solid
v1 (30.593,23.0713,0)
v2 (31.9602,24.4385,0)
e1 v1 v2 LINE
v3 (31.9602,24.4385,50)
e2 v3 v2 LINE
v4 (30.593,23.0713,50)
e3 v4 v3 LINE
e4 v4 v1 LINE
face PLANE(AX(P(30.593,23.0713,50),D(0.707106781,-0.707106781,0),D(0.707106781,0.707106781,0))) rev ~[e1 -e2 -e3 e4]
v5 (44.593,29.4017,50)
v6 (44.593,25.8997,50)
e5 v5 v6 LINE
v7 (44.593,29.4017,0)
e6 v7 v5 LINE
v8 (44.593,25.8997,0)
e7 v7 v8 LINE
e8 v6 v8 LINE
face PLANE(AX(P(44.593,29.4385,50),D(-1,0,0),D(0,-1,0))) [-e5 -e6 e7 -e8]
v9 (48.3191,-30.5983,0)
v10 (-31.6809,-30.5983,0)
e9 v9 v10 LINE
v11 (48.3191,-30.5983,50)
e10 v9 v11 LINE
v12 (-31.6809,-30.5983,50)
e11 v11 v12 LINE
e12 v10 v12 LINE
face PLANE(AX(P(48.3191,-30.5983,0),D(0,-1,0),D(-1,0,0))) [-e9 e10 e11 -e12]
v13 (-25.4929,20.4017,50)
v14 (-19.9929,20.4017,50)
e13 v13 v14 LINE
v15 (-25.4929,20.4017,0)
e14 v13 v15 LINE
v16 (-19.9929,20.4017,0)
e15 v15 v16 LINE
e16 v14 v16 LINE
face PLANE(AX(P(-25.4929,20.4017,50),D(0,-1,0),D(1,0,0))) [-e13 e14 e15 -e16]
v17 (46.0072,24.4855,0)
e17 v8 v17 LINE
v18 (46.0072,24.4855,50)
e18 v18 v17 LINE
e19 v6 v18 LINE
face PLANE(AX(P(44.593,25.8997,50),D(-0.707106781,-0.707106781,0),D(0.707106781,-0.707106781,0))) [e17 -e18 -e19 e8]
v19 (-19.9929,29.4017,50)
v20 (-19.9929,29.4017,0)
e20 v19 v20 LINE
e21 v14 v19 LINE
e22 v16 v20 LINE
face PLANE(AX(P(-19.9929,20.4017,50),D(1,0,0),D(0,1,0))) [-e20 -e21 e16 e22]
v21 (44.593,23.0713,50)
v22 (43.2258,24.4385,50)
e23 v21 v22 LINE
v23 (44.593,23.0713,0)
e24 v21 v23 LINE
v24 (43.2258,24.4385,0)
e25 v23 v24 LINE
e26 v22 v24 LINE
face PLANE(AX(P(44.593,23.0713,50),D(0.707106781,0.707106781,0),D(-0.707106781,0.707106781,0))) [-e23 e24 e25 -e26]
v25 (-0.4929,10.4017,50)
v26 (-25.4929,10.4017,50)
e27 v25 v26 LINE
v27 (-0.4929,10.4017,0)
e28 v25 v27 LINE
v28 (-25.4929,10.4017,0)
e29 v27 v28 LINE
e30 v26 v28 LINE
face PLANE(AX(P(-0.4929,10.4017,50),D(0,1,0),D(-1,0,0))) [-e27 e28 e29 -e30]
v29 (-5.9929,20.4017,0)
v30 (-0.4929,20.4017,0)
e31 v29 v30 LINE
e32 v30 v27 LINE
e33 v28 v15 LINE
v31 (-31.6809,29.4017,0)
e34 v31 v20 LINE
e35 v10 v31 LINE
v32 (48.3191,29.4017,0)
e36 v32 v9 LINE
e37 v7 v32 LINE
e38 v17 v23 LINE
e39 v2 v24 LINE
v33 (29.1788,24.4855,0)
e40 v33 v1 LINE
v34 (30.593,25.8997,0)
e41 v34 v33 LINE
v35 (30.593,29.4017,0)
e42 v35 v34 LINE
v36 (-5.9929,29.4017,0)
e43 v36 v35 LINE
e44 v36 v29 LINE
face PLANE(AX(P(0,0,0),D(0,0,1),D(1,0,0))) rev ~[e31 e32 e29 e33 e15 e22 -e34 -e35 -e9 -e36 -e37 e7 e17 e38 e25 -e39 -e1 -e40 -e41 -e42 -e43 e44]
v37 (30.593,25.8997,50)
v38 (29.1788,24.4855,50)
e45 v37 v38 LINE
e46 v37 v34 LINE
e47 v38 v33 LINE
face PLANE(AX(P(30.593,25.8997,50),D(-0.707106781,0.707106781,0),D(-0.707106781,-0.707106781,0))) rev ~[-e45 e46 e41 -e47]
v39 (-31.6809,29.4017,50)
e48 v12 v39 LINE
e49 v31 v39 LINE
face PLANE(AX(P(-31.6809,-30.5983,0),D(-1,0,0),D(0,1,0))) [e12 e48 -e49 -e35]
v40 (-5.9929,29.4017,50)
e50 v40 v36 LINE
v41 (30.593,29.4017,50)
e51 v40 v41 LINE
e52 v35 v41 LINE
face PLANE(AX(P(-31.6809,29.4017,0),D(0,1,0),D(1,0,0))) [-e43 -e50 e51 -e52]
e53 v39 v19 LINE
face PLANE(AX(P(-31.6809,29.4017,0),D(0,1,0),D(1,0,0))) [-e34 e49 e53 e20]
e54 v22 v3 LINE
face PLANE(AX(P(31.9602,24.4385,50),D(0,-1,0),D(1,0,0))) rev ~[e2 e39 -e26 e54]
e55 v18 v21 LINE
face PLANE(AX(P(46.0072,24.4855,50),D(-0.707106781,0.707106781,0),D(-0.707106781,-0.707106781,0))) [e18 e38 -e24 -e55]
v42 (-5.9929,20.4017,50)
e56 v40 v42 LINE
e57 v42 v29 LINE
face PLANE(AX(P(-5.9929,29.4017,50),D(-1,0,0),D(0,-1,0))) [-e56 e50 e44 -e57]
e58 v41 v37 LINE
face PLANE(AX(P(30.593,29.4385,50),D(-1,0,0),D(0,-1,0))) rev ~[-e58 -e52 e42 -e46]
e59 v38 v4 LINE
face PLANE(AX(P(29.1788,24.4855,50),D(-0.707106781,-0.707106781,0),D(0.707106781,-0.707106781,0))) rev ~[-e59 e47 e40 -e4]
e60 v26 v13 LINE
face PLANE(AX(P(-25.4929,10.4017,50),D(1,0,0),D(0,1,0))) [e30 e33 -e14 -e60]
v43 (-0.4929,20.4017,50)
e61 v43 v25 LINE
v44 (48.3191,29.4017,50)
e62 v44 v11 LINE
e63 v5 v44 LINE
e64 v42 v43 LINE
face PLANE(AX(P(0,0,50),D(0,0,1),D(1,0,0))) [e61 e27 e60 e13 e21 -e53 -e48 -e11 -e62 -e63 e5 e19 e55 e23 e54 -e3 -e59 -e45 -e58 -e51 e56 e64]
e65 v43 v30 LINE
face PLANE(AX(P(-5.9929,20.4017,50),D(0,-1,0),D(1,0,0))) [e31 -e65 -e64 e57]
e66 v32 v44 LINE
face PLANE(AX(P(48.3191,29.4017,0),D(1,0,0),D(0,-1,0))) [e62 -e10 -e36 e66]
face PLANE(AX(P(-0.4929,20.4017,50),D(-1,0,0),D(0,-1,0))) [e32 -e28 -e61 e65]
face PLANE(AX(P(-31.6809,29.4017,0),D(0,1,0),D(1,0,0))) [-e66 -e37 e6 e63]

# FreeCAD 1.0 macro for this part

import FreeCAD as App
import Part
import Sketcher

V = App.Vector

doc = App.newDocument("Part")
params = doc.addObject("Spreadsheet::Sheet", "Params")
for row, (alias, value) in enumerate([
    ("sketch1_width", "80 mm"),
    ("sketch1_height", "60 mm"),
    ("pad1_length", "50 mm"),
    ("sketch2_width", "14 mm"),
    ("sketch2_width2", "25 mm"),
    ("sketch2_height", "9 mm"),
    ("sketch2_height2", "10 mm"),
    ("pocket1_length", "50 mm"),
    ("sketch3_length", "2 mm"),
    ("sketch3_width", "14 mm"),
    ("pocket2_length", "50 mm"),
], start=1):
    params.set(f"A{row}", alias)
    params.set(f"B{row}", "=" + value)
    params.setAlias(f"B{row}", alias)

body = doc.addObject("PartDesign::Body", "Body")

sketch1 = doc.addObject("Sketcher::SketchObject", "Sketch")
body.addObject(sketch1)
sketch1.AttachmentSupport = (doc.XY_Plane, [""])
sketch1.MapMode = "FlatFace"
sketch1.addGeometry([
    Part.LineSegment(V(48, 29, 0), V(-32, 29, 0)),
    Part.LineSegment(V(-32, 29, 0), V(-32, -31, 0)),
    Part.LineSegment(V(-32, -31, 0), V(48, -31, 0)),
    Part.LineSegment(V(48, -31, 0), V(48, 29, 0)),
], False)
sketch1.addConstraint([
    Sketcher.Constraint("Coincident", 0, 2, 1, 1),
    Sketcher.Constraint("Coincident", 1, 2, 2, 1),
    Sketcher.Constraint("Coincident", 2, 2, 3, 1),
    Sketcher.Constraint("Coincident", 3, 2, 0, 1),
    Sketcher.Constraint("Horizontal", 0),
    Sketcher.Constraint("Vertical", 1),
    Sketcher.Constraint("Horizontal", 2),
    Sketcher.Constraint("Vertical", 3),
    Sketcher.Constraint("DistanceX", 0, 2, 0, 1, 80.0),
    Sketcher.Constraint("DistanceY", 1, 2, 1, 1, 60.0),
    Sketcher.Constraint("DistanceX", 0, 2, -1, 1, 31.681),
    Sketcher.Constraint("DistanceY", -1, 1, 0, 2, 29.4017),
])
sketch1.setExpression("Constraints[8]", "Params.sketch1_width")
sketch1.setExpression("Constraints[9]", "Params.sketch1_height")
pad1 = doc.addObject("PartDesign::Pad", "Pad")
body.addObject(pad1)
pad1.Profile = sketch1
pad1.setExpression("Length", "Params.pad1_length")

sketch2 = doc.addObject("Sketcher::SketchObject", "Sketch001")
body.addObject(sketch2)
sketch2.AttachmentSupport = (doc.XY_Plane, [""])
sketch2.MapMode = "FlatFace"
sketch2.AttachmentOffset = App.Placement(V(0, 0, 50), App.Rotation())
sketch2.addGeometry([
    Part.LineSegment(V(-6, 29, 0), V(-20, 29, 0)),
    Part.LineSegment(V(-20, 29, 0), V(-20, 20, 0)),
    Part.LineSegment(V(-20, 20, 0), V(-25, 20, 0)),
    Part.LineSegment(V(-25, 20, 0), V(-25, 10, 0)),
    Part.LineSegment(V(-25, 10, 0), V(0, 10, 0)),
    Part.LineSegment(V(0, 10, 0), V(0, 20, 0)),
    Part.LineSegment(V(0, 20, 0), V(-6, 20, 0)),
    Part.LineSegment(V(-6, 20, 0), V(-6, 29, 0)),
], False)
sketch2.addConstraint([
    Sketcher.Constraint("Coincident", 0, 2, 1, 1),
    Sketcher.Constraint("Coincident", 1, 2, 2, 1),
    Sketcher.Constraint("Coincident", 2, 2, 3, 1),
    Sketcher.Constraint("Coincident", 3, 2, 4, 1),
    Sketcher.Constraint("Coincident", 4, 2, 5, 1),
    Sketcher.Constraint("Coincident", 5, 2, 6, 1),
    Sketcher.Constraint("Coincident", 6, 2, 7, 1),
    Sketcher.Constraint("Coincident", 7, 2, 0, 1),
    Sketcher.Constraint("Horizontal", 0),
    Sketcher.Constraint("Vertical", 1),
    Sketcher.Constraint("Horizontal", 2),
    Sketcher.Constraint("Vertical", 3),
    Sketcher.Constraint("Horizontal", 4),
    Sketcher.Constraint("Vertical", 5),
    Sketcher.Constraint("Horizontal", 6),
    Sketcher.Constraint("Vertical", 7),
    Sketcher.Constraint("Horizontal", 2, 2, 5, 2),
    Sketcher.Constraint("Equal", 2, 6),
    Sketcher.Constraint("DistanceX", 0, 2, 0, 1, 14.0),
    Sketcher.Constraint("DistanceX", 4, 1, 4, 2, 25.0),
    Sketcher.Constraint("DistanceY", 1, 2, 1, 1, 9.0),
    Sketcher.Constraint("DistanceY", 3, 2, 3, 1, 10.0),
    Sketcher.Constraint("DistanceX", 0, 2, -1, 1, 19.993),
    Sketcher.Constraint("DistanceY", -1, 1, 0, 2, 29.4017),
])
sketch2.setExpression("Constraints[18]", "Params.sketch2_width")
sketch2.setExpression("Constraints[19]", "Params.sketch2_width2")
sketch2.setExpression("Constraints[20]", "Params.sketch2_height")
sketch2.setExpression("Constraints[21]", "Params.sketch2_height2")
pocket1 = doc.addObject("PartDesign::Pocket", "Pocket")
body.addObject(pocket1)
pocket1.Profile = sketch2
pocket1.setExpression("Length", "Params.pocket1_length")

sketch3 = doc.addObject("Sketcher::SketchObject", "Sketch002")
body.addObject(sketch3)
sketch3.AttachmentSupport = (doc.XY_Plane, [""])
sketch3.MapMode = "FlatFace"
sketch3.AttachmentOffset = App.Placement(V(0, 0, 50), App.Rotation())
sketch3.addGeometry([
    Part.LineSegment(V(44.6, 29.4, 0), V(30.6, 29.4, 0)),
    Part.LineSegment(V(30.6, 29.4, 0), V(30.6, 25.9, 0)),
    Part.LineSegment(V(30.6, 25.9, 0), V(29.2, 24.5, 0)),
    Part.LineSegment(V(29.2, 24.5, 0), V(30.6, 23.1, 0)),
    Part.LineSegment(V(30.6, 23.1, 0), V(32, 24.4, 0)),
    Part.LineSegment(V(32, 24.4, 0), V(43.2, 24.4, 0)),
    Part.LineSegment(V(43.2, 24.4, 0), V(44.6, 23.1, 0)),
    Part.LineSegment(V(44.6, 23.1, 0), V(46, 24.5, 0)),
    Part.LineSegment(V(46, 24.5, 0), V(44.6, 25.9, 0)),
    Part.LineSegment(V(44.6, 25.9, 0), V(44.6, 29.4, 0)),
], False)
sketch3.addConstraint([
    Sketcher.Constraint("Coincident", 0, 2, 1, 1),
    Sketcher.Constraint("Coincident", 1, 2, 2, 1),
    Sketcher.Constraint("Coincident", 2, 2, 3, 1),
    Sketcher.Constraint("Coincident", 3, 2, 4, 1),
    Sketcher.Constraint("Coincident", 4, 2, 5, 1),
    Sketcher.Constraint("Coincident", 5, 2, 6, 1),
    Sketcher.Constraint("Coincident", 6, 2, 7, 1),
    Sketcher.Constraint("Coincident", 7, 2, 8, 1),
    Sketcher.Constraint("Coincident", 8, 2, 9, 1),
    Sketcher.Constraint("Coincident", 9, 2, 0, 1),
    Sketcher.Constraint("Horizontal", 0),
    Sketcher.Constraint("Vertical", 1),
    Sketcher.Constraint("Horizontal", 5),
    Sketcher.Constraint("Vertical", 9),
    Sketcher.Constraint("Perpendicular", 2, 3),
    Sketcher.Constraint("Perpendicular", 3, 4),
    Sketcher.Constraint("Perpendicular", 4, 6),
    Sketcher.Constraint("Perpendicular", 6, 7),
    Sketcher.Constraint("Perpendicular", 7, 8),
    Sketcher.Constraint("Horizontal", 3, 2, 6, 2),
    Sketcher.Constraint("Horizontal", 2, 2, 7, 2),
    Sketcher.Constraint("Horizontal", 1, 2, 8, 2),
    Sketcher.Constraint("Vertical", 1, 2, 3, 2),
    Sketcher.Constraint("Vertical", 6, 2, 8, 2),
    Sketcher.Constraint("Distance", 2, 2.0),
    Sketcher.Constraint("DistanceY", 4, 2, 0, 2, 5.0),
    Sketcher.Constraint("DistanceX", 0, 2, 0, 1, 14.0),
    Sketcher.Constraint("DistanceX", 5, 1, 5, 2, 11.2656),
    Sketcher.Constraint("DistanceX", -1, 1, 0, 2, 30.593),
    Sketcher.Constraint("DistanceY", -1, 1, 0, 2, 29.4385),
])
sketch3.setExpression("Constraints[24]", "Params.sketch3_length")
sketch3.setExpression("Constraints[26]", "Params.sketch3_width")
pocket2 = doc.addObject("PartDesign::Pocket", "Pocket001")
body.addObject(pocket2)
pocket2.Profile = sketch3
pocket2.setExpression("Length", "Params.pocket2_length")

doc.recompute()
